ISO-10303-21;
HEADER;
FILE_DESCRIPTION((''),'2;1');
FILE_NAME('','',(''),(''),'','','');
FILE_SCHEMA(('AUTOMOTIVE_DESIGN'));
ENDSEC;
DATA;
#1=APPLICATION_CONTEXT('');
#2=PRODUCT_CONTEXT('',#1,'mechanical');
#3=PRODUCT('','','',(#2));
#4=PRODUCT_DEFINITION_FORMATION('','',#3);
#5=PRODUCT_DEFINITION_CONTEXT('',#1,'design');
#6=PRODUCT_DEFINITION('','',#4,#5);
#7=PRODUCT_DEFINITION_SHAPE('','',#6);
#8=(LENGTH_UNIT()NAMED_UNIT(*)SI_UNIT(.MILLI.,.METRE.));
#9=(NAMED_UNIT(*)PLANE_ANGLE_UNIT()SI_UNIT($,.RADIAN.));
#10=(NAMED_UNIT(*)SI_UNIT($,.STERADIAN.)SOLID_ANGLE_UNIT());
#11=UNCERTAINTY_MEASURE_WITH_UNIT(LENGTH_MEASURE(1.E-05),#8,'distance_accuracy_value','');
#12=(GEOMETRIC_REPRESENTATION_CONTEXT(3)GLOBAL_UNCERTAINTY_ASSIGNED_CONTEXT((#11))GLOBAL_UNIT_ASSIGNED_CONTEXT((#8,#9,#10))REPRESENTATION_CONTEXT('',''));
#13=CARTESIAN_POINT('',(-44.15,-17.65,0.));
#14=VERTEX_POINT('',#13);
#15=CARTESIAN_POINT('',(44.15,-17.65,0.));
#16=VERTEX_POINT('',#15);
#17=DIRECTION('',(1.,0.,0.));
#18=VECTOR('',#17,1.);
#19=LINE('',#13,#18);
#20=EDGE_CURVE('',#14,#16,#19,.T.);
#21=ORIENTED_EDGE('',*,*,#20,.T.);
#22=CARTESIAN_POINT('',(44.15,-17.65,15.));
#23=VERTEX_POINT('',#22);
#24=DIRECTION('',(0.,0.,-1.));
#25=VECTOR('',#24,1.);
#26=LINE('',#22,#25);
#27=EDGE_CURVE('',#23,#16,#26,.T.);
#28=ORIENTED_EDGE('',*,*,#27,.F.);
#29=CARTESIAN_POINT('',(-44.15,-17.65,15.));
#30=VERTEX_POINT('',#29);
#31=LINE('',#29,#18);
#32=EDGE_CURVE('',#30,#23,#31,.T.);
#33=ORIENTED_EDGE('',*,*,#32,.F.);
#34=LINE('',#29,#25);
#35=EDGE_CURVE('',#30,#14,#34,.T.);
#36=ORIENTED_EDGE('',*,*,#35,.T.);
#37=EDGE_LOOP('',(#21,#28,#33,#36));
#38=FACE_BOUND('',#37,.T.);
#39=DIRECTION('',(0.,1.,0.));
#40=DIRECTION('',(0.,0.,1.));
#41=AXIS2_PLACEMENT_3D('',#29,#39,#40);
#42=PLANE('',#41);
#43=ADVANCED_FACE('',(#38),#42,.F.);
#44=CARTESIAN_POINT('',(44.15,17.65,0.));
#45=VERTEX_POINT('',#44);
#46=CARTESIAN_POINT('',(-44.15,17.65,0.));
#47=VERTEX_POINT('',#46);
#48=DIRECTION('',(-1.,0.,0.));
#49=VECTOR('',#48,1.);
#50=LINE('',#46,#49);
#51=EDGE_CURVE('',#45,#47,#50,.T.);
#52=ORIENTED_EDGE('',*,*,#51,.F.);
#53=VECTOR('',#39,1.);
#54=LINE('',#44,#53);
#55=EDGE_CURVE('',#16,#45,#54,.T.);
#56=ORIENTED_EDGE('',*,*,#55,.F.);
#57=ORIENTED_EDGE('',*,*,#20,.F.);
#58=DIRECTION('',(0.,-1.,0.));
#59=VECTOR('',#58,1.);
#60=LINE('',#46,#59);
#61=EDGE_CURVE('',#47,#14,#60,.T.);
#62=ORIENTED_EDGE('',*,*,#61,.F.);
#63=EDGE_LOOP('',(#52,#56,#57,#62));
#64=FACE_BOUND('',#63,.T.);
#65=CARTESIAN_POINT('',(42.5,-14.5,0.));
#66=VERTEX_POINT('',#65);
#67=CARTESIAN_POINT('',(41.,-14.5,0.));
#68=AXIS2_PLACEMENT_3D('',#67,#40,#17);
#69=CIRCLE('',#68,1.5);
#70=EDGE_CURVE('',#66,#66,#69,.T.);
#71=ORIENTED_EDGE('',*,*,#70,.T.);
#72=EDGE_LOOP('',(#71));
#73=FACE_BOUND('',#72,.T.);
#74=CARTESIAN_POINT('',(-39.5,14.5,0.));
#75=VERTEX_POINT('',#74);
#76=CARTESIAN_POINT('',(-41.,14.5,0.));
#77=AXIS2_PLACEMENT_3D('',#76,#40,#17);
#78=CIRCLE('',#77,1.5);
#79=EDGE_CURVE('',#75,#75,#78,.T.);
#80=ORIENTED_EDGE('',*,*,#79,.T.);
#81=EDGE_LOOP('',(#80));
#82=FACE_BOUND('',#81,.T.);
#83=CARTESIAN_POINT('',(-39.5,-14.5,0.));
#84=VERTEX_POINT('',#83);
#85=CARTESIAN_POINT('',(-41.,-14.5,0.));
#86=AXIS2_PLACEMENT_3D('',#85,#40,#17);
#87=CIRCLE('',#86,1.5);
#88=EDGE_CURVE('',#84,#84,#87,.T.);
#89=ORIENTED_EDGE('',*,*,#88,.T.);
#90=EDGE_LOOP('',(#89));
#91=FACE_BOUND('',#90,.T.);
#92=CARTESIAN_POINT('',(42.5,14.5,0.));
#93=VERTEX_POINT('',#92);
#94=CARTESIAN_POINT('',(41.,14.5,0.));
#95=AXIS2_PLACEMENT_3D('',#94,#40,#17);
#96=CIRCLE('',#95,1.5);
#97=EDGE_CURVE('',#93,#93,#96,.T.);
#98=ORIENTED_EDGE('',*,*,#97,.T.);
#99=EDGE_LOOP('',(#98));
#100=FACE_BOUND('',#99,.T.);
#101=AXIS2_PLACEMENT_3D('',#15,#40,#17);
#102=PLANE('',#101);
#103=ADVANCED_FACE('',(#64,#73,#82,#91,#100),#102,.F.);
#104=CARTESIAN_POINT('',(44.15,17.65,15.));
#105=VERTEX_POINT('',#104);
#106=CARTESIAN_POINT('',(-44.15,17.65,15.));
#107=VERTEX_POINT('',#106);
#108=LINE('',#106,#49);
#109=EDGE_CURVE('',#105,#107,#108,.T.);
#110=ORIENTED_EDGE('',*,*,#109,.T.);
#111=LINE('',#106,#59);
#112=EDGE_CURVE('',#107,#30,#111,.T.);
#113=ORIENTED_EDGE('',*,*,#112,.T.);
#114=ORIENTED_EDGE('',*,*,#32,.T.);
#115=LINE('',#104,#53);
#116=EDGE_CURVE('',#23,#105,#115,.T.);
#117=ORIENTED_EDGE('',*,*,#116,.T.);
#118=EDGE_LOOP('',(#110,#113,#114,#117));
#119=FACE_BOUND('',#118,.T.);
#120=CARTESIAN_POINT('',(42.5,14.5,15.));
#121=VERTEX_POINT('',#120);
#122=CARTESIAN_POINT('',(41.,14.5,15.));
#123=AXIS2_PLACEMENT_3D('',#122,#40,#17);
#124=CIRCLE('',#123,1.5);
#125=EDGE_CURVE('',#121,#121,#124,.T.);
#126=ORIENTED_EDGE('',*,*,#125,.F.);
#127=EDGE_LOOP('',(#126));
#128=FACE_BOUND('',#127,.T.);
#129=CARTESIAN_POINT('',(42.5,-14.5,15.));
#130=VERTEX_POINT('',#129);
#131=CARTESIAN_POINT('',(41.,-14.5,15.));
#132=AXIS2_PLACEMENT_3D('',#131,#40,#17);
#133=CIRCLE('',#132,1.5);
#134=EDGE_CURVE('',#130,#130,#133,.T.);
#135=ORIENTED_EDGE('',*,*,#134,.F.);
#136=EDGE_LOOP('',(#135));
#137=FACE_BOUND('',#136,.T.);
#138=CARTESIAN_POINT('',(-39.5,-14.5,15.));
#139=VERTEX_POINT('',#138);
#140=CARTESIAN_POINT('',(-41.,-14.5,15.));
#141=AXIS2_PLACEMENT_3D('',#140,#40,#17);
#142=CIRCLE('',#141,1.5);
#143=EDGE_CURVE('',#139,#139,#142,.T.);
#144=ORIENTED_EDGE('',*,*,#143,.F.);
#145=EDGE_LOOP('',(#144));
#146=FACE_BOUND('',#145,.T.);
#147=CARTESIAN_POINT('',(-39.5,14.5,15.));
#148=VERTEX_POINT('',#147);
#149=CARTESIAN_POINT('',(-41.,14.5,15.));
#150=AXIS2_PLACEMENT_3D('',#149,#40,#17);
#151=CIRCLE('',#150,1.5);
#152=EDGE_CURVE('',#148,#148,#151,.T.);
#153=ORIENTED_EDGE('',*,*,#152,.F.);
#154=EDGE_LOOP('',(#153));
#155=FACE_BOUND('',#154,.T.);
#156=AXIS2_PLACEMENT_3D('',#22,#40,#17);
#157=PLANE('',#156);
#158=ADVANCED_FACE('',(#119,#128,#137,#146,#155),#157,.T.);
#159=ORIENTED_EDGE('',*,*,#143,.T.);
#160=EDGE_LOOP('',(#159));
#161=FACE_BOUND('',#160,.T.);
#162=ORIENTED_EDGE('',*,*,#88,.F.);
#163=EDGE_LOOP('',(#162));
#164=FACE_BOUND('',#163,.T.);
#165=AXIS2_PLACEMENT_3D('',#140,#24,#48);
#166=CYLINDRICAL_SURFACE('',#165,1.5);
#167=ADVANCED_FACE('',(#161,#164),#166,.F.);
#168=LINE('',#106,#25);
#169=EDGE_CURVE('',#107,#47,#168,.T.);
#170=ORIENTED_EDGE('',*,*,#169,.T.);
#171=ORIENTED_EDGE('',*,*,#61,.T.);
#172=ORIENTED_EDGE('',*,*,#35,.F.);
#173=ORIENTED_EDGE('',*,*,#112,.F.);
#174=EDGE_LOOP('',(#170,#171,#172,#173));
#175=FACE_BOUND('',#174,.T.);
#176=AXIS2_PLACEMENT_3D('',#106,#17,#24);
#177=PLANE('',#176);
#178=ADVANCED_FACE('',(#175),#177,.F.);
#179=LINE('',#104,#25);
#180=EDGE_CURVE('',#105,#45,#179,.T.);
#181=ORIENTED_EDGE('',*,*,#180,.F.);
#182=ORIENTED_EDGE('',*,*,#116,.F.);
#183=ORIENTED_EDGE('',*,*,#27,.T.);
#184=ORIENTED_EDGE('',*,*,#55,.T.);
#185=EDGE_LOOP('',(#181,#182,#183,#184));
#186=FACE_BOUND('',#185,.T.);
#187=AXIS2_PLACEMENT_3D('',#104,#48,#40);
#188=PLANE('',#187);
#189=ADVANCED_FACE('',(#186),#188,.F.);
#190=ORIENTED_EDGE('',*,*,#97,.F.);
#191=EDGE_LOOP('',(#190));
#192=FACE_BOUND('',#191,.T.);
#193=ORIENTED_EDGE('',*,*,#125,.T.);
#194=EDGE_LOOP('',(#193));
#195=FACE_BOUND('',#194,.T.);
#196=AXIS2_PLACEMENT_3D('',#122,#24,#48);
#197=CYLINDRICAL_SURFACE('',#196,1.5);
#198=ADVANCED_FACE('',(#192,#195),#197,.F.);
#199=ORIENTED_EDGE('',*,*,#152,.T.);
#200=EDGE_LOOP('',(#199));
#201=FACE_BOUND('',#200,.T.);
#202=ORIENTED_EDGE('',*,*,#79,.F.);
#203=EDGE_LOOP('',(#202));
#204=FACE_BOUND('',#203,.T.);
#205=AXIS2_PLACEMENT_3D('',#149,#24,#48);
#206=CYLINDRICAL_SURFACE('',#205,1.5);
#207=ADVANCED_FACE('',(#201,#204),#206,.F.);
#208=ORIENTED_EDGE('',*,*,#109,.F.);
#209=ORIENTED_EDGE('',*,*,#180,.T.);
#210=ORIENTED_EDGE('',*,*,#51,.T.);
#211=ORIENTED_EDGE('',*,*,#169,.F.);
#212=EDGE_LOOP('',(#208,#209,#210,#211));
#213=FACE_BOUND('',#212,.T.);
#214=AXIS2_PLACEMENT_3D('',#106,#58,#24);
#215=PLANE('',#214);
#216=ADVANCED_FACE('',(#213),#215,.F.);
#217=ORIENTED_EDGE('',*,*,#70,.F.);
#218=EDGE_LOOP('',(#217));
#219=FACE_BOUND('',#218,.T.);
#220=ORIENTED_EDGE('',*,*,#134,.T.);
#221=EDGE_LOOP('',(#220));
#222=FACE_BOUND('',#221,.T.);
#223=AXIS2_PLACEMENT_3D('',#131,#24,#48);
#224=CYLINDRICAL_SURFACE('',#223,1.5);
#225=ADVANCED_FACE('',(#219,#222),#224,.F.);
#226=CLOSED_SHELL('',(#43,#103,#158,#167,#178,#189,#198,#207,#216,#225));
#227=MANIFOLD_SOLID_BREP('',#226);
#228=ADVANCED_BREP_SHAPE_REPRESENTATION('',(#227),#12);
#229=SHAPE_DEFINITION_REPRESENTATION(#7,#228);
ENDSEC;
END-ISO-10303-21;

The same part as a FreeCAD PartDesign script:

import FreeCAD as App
import Part
import Sketcher
from FreeCAD import Vector

doc = App.newDocument("Part")
params = doc.addObject("Spreadsheet::Sheet", "Params")
for row, (alias, value) in enumerate([
    ("sketch1_diameter", "3 mm"),
    ("sketch1_width", "88.3 mm"),
    ("sketch1_height", "35.3 mm"),
    ("pad1_length", "15 mm"),
], start=1):
    params.set(f"A{row}", alias)
    params.set(f"B{row}", "=" + value)
    params.setAlias(f"B{row}", alias)

body = doc.addObject("PartDesign::Body", "Body")

# Sketch on XY plane
sketch1 = body.newObject("Sketcher::SketchObject", "Sketch")
sketch1.AttachmentSupport = (doc.getObject("XY_Plane"), [""])
sketch1.MapMode = "FlatFace"
sketch1.addGeometry([
    Part.LineSegment(Vector(-44.1, 17.6, 0), Vector(-44.1, -17.6, 0)),  # 0
    Part.LineSegment(Vector(-44.1, -17.6, 0), Vector(44.1, -17.6, 0)),  # 1
    Part.LineSegment(Vector(44.1, -17.6, 0), Vector(44.1, 17.6, 0)),  # 2
    Part.LineSegment(Vector(44.1, 17.6, 0), Vector(-44.1, 17.6, 0)),  # 3
    Part.Circle(Vector(-41, -14.5, 0), Vector(0, 0, 1), 1.5),  # 4
    Part.Circle(Vector(41, -14.5, 0), Vector(0, 0, 1), 1.5),  # 5
    Part.Circle(Vector(-41, 14.5, 0), Vector(0, 0, 1), 1.5),  # 6
    Part.Circle(Vector(41, 14.5, 0), Vector(0, 0, 1), 1.5),  # 7
], False)
sketch1.addConstraint([
    Sketcher.Constraint("Coincident", 0, 2, 1, 1),
    Sketcher.Constraint("Coincident", 1, 2, 2, 1),
    Sketcher.Constraint("Coincident", 2, 2, 3, 1),
    Sketcher.Constraint("Coincident", 3, 2, 0, 1),
    Sketcher.Constraint("Vertical", 0),
    Sketcher.Constraint("Horizontal", 1),
    Sketcher.Constraint("Vertical", 2),
    Sketcher.Constraint("Horizontal", 3),
    Sketcher.Constraint("Equal", 4, 5),
    Sketcher.Constraint("Equal", 5, 6),
    Sketcher.Constraint("Equal", 6, 7),
    Sketcher.Constraint("Symmetric", 5, 3, 6, 3, -1, 1),
    Sketcher.Constraint("Symmetric", 4, 3, 7, 3, -1, 1),
    Sketcher.Constraint("Symmetric", 0, 2, 2, 2, -1, 1),
    Sketcher.Constraint("Symmetric", 4, 3, 5, 3, -2),
    Sketcher.Constraint("Diameter", 4, 3.0),
    Sketcher.Constraint("DistanceX", 1, 1, 1, 2, 88.3),
    Sketcher.Constraint("DistanceY", 0, 2, 0, 1, 35.3),
    Sketcher.Constraint("DistanceX", 4, 3, -1, 1, 41.0),
    Sketcher.Constraint("DistanceY", 4, 3, 6, 3, 29.0),
])
sketch1.setExpression("Constraints[15]", "Params.sketch1_diameter")
sketch1.setExpression("Constraints[16]", "Params.sketch1_width")
sketch1.setExpression("Constraints[17]", "Params.sketch1_height")
pad1 = body.newObject("PartDesign::Pad", "Pad")
pad1.Profile = sketch1
pad1.setExpression("Length", "Params.pad1_length")

doc.recompute()
